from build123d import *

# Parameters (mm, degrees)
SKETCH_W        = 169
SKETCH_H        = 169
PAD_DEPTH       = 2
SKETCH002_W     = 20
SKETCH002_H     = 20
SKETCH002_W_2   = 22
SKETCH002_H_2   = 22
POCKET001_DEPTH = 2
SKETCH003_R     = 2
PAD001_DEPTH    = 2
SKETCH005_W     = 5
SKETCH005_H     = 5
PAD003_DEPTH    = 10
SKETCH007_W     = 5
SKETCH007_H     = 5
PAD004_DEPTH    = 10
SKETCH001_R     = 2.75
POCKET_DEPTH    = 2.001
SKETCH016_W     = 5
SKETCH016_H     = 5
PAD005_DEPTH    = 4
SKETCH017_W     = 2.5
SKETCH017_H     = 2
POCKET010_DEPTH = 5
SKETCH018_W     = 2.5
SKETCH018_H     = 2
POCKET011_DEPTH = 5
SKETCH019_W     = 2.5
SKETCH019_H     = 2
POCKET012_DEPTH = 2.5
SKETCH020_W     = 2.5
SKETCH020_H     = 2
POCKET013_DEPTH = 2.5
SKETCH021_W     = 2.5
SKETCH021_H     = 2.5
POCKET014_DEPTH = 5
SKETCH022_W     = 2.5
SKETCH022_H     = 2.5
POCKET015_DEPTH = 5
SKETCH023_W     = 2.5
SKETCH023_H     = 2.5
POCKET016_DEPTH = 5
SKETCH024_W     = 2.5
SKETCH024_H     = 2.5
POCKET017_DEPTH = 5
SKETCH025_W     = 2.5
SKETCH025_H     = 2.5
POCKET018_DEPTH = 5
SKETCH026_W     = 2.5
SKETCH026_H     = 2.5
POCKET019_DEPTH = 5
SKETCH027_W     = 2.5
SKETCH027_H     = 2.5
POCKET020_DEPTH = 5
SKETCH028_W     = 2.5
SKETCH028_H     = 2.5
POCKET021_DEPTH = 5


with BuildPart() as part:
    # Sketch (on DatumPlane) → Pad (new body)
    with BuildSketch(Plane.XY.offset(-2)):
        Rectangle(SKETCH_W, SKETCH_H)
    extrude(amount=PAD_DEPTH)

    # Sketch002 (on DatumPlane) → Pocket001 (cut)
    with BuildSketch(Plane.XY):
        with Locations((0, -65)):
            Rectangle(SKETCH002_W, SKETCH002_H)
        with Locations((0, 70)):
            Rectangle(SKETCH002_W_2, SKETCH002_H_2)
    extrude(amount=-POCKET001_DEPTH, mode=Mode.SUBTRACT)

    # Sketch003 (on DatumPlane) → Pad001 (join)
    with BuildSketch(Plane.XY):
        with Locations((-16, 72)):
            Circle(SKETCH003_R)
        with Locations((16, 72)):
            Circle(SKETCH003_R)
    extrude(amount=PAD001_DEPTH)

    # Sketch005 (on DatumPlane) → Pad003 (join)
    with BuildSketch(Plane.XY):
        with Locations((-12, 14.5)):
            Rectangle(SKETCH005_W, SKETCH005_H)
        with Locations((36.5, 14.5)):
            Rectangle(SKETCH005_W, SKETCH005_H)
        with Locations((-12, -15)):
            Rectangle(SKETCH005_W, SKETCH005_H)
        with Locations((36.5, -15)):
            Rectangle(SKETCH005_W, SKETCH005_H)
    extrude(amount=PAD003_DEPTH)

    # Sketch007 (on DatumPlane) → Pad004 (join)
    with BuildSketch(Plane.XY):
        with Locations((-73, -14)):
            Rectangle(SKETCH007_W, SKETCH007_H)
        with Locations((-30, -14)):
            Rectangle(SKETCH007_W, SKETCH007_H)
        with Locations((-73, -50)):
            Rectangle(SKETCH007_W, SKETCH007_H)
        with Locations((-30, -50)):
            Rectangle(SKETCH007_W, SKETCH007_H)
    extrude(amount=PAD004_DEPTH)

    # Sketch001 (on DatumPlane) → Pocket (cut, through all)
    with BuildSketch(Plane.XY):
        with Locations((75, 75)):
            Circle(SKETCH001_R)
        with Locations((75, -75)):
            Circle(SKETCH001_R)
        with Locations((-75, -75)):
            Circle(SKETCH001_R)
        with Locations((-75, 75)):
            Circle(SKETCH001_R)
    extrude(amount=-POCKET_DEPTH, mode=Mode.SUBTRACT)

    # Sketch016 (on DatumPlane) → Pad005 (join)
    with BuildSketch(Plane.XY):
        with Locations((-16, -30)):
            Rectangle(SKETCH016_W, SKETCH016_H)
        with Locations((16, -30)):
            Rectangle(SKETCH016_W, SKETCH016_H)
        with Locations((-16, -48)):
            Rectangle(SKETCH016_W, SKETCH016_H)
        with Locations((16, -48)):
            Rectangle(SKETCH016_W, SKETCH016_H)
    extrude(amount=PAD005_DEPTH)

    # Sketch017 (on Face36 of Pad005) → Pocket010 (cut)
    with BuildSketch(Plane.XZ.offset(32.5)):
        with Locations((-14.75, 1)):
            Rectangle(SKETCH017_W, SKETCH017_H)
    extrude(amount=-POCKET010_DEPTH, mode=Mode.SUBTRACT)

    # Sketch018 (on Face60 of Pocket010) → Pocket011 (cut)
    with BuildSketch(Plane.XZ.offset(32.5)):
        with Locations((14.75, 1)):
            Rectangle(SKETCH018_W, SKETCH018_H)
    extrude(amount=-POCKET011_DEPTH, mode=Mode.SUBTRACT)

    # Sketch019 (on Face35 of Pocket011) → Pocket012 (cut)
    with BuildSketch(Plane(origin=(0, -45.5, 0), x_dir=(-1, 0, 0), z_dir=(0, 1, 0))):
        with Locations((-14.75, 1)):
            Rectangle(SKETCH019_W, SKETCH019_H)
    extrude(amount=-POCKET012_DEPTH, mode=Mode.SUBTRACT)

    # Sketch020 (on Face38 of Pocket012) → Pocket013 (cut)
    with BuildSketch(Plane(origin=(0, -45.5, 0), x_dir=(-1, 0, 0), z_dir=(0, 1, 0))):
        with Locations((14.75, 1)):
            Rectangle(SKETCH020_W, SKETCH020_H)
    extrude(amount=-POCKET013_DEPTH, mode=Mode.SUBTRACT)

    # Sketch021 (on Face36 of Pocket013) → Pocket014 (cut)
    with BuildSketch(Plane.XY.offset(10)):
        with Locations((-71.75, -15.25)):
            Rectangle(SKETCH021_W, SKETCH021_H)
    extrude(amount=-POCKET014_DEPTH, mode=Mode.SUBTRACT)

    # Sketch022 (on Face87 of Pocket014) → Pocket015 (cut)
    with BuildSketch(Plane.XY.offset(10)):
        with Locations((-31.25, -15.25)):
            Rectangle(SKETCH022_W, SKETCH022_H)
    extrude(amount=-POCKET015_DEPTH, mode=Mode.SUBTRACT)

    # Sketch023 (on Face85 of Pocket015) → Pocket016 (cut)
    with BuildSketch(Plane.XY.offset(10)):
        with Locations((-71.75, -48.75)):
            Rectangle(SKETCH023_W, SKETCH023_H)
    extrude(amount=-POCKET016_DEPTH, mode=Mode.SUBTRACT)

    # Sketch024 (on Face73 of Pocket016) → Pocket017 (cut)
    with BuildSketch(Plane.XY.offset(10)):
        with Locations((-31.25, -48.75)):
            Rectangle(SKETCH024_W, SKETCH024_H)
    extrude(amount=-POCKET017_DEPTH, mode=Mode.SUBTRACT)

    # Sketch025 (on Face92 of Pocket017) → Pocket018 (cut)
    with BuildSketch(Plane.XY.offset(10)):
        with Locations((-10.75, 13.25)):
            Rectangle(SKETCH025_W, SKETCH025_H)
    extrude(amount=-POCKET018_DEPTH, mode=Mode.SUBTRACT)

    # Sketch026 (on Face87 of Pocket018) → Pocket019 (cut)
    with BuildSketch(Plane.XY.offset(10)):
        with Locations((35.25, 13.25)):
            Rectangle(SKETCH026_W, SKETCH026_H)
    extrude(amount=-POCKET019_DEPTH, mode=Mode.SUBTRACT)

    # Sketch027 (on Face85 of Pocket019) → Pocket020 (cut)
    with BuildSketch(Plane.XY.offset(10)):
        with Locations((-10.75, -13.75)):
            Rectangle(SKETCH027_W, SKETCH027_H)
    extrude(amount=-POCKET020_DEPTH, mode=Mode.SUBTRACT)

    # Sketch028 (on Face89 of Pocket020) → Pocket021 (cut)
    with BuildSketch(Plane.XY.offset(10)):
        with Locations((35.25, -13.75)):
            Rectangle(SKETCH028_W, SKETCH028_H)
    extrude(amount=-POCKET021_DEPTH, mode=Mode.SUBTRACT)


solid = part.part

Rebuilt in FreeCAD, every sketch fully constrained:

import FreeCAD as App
import Part
import Sketcher
from FreeCAD import Vector
Q = App.Units.Quantity

doc = App.newDocument("Part")
body = doc.addObject("PartDesign::Body", "Body")

# Sketch on XY plane
sketch1 = body.newObject("Sketcher::SketchObject", "Sketch")
sketch1.AttachmentSupport = (doc.getObject("XY_Plane"), [""])
sketch1.MapMode = "FlatFace"
sketch1.AttachmentOffset = App.Placement(Vector(0, 0, -2), App.Rotation())
sketch1.addGeometry([
    Part.LineSegment(Vector(-84, 84, 0), Vector(-84, -84, 0)),
    Part.LineSegment(Vector(-84, -84, 0), Vector(84, -84, 0)),
    Part.LineSegment(Vector(84, -84, 0), Vector(84, 84, 0)),
    Part.LineSegment(Vector(84, 84, 0), Vector(-84, 84, 0)),
], False)
sketch1.addConstraint([
    Sketcher.Constraint("Coincident", 0, 2, 1, 1),
    Sketcher.Constraint("Coincident", 1, 2, 2, 1),
    Sketcher.Constraint("Coincident", 2, 2, 3, 1),
    Sketcher.Constraint("Coincident", 3, 2, 0, 1),
    Sketcher.Constraint("Vertical", 0),
    Sketcher.Constraint("Horizontal", 1),
    Sketcher.Constraint("Vertical", 2),
    Sketcher.Constraint("Horizontal", 3),
    Sketcher.Constraint("Symmetric", 0, 2, 2, 2, -1, 1),
    Sketcher.Constraint("Equal", 3, 0),
    Sketcher.Constraint("DistanceX", 1, 1, 1, 2, Q("169 mm")),
])
pad1 = body.newObject("PartDesign::Pad", "Pad")
pad1.Profile = sketch1
pad1.Length = 2

# Sketch on XY plane
sketch2 = body.newObject("Sketcher::SketchObject", "Sketch001")
sketch2.AttachmentSupport = (doc.getObject("XY_Plane"), [""])
sketch2.MapMode = "FlatFace"
sketch2.addGeometry([
    Part.LineSegment(Vector(-10, -55, 0), Vector(-10, -75, 0)),  # 0
    Part.LineSegment(Vector(-10, -75, 0), Vector(10, -75, 0)),  # 1
    Part.LineSegment(Vector(10, -75, 0), Vector(10, -55, 0)),  # 2
    Part.LineSegment(Vector(10, -55, 0), Vector(-10, -55, 0)),  # 3
    Part.LineSegment(Vector(-11, 81, 0), Vector(-11, 59, 0)),  # 4
    Part.LineSegment(Vector(-11, 59, 0), Vector(11, 59, 0)),  # 5
    Part.LineSegment(Vector(11, 59, 0), Vector(11, 81, 0)),  # 6
    Part.LineSegment(Vector(11, 81, 0), Vector(-11, 81, 0)),  # 7
], False)
sketch2.addConstraint([
    Sketcher.Constraint("Coincident", 0, 2, 1, 1),
    Sketcher.Constraint("Coincident", 1, 2, 2, 1),
    Sketcher.Constraint("Coincident", 2, 2, 3, 1),
    Sketcher.Constraint("Coincident", 3, 2, 0, 1),
    Sketcher.Constraint("Coincident", 4, 2, 5, 1),
    Sketcher.Constraint("Coincident", 5, 2, 6, 1),
    Sketcher.Constraint("Coincident", 6, 2, 7, 1),
    Sketcher.Constraint("Coincident", 7, 2, 4, 1),
    Sketcher.Constraint("Vertical", 0),
    Sketcher.Constraint("Horizontal", 1),
    Sketcher.Constraint("Vertical", 2),
    Sketcher.Constraint("Horizontal", 3),
    Sketcher.Constraint("Vertical", 4),
    Sketcher.Constraint("Horizontal", 5),
    Sketcher.Constraint("Vertical", 6),
    Sketcher.Constraint("Horizontal", 7),
    Sketcher.Constraint("Equal", 3, 0),
    Sketcher.Constraint("Equal", 7, 4),
    Sketcher.Constraint("DistanceX", 1, 1, 1, 2, Q("20 mm")),
    Sketcher.Constraint("DistanceX", 5, 1, 5, 2, Q("22 mm")),
    Sketcher.Constraint("DistanceX", 0, 2, -1, 1, Q("10 mm")),
    Sketcher.Constraint("DistanceY", 0, 2, -1, 1, Q("75 mm")),
    Sketcher.Constraint("DistanceX", 4, 2, -1, 1, Q("11 mm")),
    Sketcher.Constraint("DistanceY", -1, 1, 4, 2, Q("59 mm")),
])
pocket1 = body.newObject("PartDesign::Pocket", "Pocket")
pocket1.Profile = sketch2
pocket1.Length = 2

# Sketch on XY plane
sketch3 = body.newObject("Sketcher::SketchObject", "Sketch002")
sketch3.AttachmentSupport = (doc.getObject("XY_Plane"), [""])
sketch3.MapMode = "FlatFace"
sketch3.addGeometry([
    Part.Circle(Vector(-16, 72, 0), Vector(0, 0, 1), 2),
    Part.Circle(Vector(16, 72, 0), Vector(0, 0, 1), 2),
], False)
sketch3.addConstraint([
    Sketcher.Constraint("Equal", 0, 1),
    Sketcher.Constraint("Symmetric", 0, 3, 1, 3, -2),
    Sketcher.Constraint("Diameter", 0, Q("4 mm")),
    Sketcher.Constraint("DistanceX", 0, 3, -1, 1, Q("16 mm")),
    Sketcher.Constraint("DistanceY", -1, 1, 0, 3, Q("72 mm")),
])
pad2 = body.newObject("PartDesign::Pad", "Pad001")
pad2.Profile = sketch3
pad2.Length = 2

# Sketch on XY plane
sketch4 = body.newObject("Sketcher::SketchObject", "Sketch003")
sketch4.AttachmentSupport = (doc.getObject("XY_Plane"), [""])
sketch4.MapMode = "FlatFace"
sketch4.addGeometry([
    Part.LineSegment(Vector(-14, 17, 0), Vector(-14, 12, 0)),  # 0
    Part.LineSegment(Vector(-14, 12, 0), Vector(-10, 12, 0)),  # 1
    Part.LineSegment(Vector(-10, 12, 0), Vector(-10, 17, 0)),  # 2
    Part.LineSegment(Vector(-10, 17, 0), Vector(-14, 17, 0)),  # 3
    Part.LineSegment(Vector(34, 17, 0), Vector(34, 12, 0)),  # 4
    Part.LineSegment(Vector(34, 12, 0), Vector(39, 12, 0)),  # 5
    Part.LineSegment(Vector(39, 12, 0), Vector(39, 17, 0)),  # 6
    Part.LineSegment(Vector(39, 17, 0), Vector(34, 17, 0)),  # 7
    Part.LineSegment(Vector(-14, -12, 0), Vector(-14, -18, 0)),  # 8
    Part.LineSegment(Vector(-14, -18, 0), Vector(-10, -18, 0)),  # 9
    Part.LineSegment(Vector(-10, -18, 0), Vector(-10, -12, 0)),  # 10
    Part.LineSegment(Vector(-10, -12, 0), Vector(-14, -12, 0)),  # 11
    Part.LineSegment(Vector(34, -12, 0), Vector(34, -18, 0)),  # 12
    Part.LineSegment(Vector(34, -18, 0), Vector(39, -18, 0)),  # 13
    Part.LineSegment(Vector(39, -18, 0), Vector(39, -12, 0)),  # 14
    Part.LineSegment(Vector(39, -12, 0), Vector(34, -12, 0)),  # 15
], False)
sketch4.addConstraint([
    Sketcher.Constraint("Coincident", 0, 2, 1, 1),
    Sketcher.Constraint("Coincident", 1, 2, 2, 1),
    Sketcher.Constraint("Coincident", 2, 2, 3, 1),
    Sketcher.Constraint("Coincident", 3, 2, 0, 1),
    Sketcher.Constraint("Coincident", 4, 2, 5, 1),
    Sketcher.Constraint("Coincident", 5, 2, 6, 1),
    Sketcher.Constraint("Coincident", 6, 2, 7, 1),
    Sketcher.Constraint("Coincident", 7, 2, 4, 1),
    Sketcher.Constraint("Coincident", 8, 2, 9, 1),
    Sketcher.Constraint("Coincident", 9, 2, 10, 1),
    Sketcher.Constraint("Coincident", 10, 2, 11, 1),
    Sketcher.Constraint("Coincident", 11, 2, 8, 1),
    Sketcher.Constraint("Coincident", 12, 2, 13, 1),
    Sketcher.Constraint("Coincident", 13, 2, 14, 1),
    Sketcher.Constraint("Coincident", 14, 2, 15, 1),
    Sketcher.Constraint("Coincident", 15, 2, 12, 1),
    Sketcher.Constraint("Vertical", 0),
    Sketcher.Constraint("Horizontal", 1),
    Sketcher.Constraint("Vertical", 2),
    Sketcher.Constraint("Horizontal", 3),
    Sketcher.Constraint("Vertical", 4),
    Sketcher.Constraint("Horizontal", 5),
    Sketcher.Constraint("Vertical", 6),
    Sketcher.Constraint("Horizontal", 7),
    Sketcher.Constraint("Vertical", 8),
    Sketcher.Constraint("Horizontal", 9),
    Sketcher.Constraint("Vertical", 10),
    Sketcher.Constraint("Horizontal", 11),
    Sketcher.Constraint("Vertical", 12),
    Sketcher.Constraint("Horizontal", 13),
    Sketcher.Constraint("Vertical", 14),
    Sketcher.Constraint("Horizontal", 15),
    Sketcher.Constraint("Horizontal", 1, 2, 4, 2),
    Sketcher.Constraint("Horizontal", 3, 2, 6, 2),
    Sketcher.Constraint("Horizontal", 9, 2, 12, 2),
    Sketcher.Constraint("Horizontal", 11, 2, 14, 2),
    Sketcher.Constraint("Vertical", 3, 2, 8, 2),
    Sketcher.Constraint("Vertical", 2, 2, 9, 2),
    Sketcher.Constraint("Vertical", 7, 2, 12, 2),
    Sketcher.Constraint("Vertical", 6, 2, 13, 2),
    Sketcher.Constraint("Equal", 3, 5),
    Sketcher.Constraint("Equal", 15, 0),
    Sketcher.Constraint("Equal", 6, 8),
    Sketcher.Constraint("DistanceX", 1, 1, 1, 2, Q("5 mm")),
    Sketcher.Constraint("DistanceY", -1, 1, 0, 2, Q("12 mm")),
    Sketcher.Constraint("DistanceX", -1, 1, 4, 2, Q("34 mm")),
    Sketcher.Constraint("DistanceX", 0, 2, -1, 1, Q("14.5 mm")),
    Sketcher.Constraint("DistanceY", 8, 2, -1, 1, Q("17.5 mm")),
])
pad3 = body.newObject("PartDesign::Pad", "Pad002")
pad3.Profile = sketch4
pad3.Length = 10

# Sketch on XY plane
sketch5 = body.newObject("Sketcher::SketchObject", "Sketch004")
sketch5.AttachmentSupport = (doc.getObject("XY_Plane"), [""])
sketch5.MapMode = "FlatFace"
sketch5.addGeometry([
    Part.LineSegment(Vector(-76, -12, 0), Vector(-76, -16, 0)),  # 0
    Part.LineSegment(Vector(-76, -16, 0), Vector(-70, -16, 0)),  # 1
    Part.LineSegment(Vector(-70, -16, 0), Vector(-70, -12, 0)),  # 2
    Part.LineSegment(Vector(-70, -12, 0), Vector(-76, -12, 0)),  # 3
    Part.LineSegment(Vector(-32, -12, 0), Vector(-32, -16, 0)),  # 4
    Part.LineSegment(Vector(-32, -16, 0), Vector(-28, -16, 0)),  # 5
    Part.LineSegment(Vector(-28, -16, 0), Vector(-28, -12, 0)),  # 6
    Part.LineSegment(Vector(-28, -12, 0), Vector(-32, -12, 0)),  # 7
    Part.LineSegment(Vector(-76, -48, 0), Vector(-76, -52, 0)),  # 8
    Part.LineSegment(Vector(-76, -52, 0), Vector(-70, -52, 0)),  # 9
    Part.LineSegment(Vector(-70, -52, 0), Vector(-70, -48, 0)),  # 10
    Part.LineSegment(Vector(-70, -48, 0), Vector(-76, -48, 0)),  # 11
    Part.LineSegment(Vector(-32, -48, 0), Vector(-32, -52, 0)),  # 12
    Part.LineSegment(Vector(-32, -52, 0), Vector(-28, -52, 0)),  # 13
    Part.LineSegment(Vector(-28, -52, 0), Vector(-28, -48, 0)),  # 14
    Part.LineSegment(Vector(-28, -48, 0), Vector(-32, -48, 0)),  # 15
], False)
sketch5.addConstraint([
    Sketcher.Constraint("Coincident", 0, 2, 1, 1),
    Sketcher.Constraint("Coincident", 1, 2, 2, 1),
    Sketcher.Constraint("Coincident", 2, 2, 3, 1),
    Sketcher.Constraint("Coincident", 3, 2, 0, 1),
    Sketcher.Constraint("Coincident", 4, 2, 5, 1),
    Sketcher.Constraint("Coincident", 5, 2, 6, 1),
    Sketcher.Constraint("Coincident", 6, 2, 7, 1),
    Sketcher.Constraint("Coincident", 7, 2, 4, 1),
    Sketcher.Constraint("Coincident", 8, 2, 9, 1),
    Sketcher.Constraint("Coincident", 9, 2, 10, 1),
    Sketcher.Constraint("Coincident", 10, 2, 11, 1),
    Sketcher.Constraint("Coincident", 11, 2, 8, 1),
    Sketcher.Constraint("Coincident", 12, 2, 13, 1),
    Sketcher.Constraint("Coincident", 13, 2, 14, 1),
    Sketcher.Constraint("Coincident", 14, 2, 15, 1),
    Sketcher.Constraint("Coincident", 15, 2, 12, 1),
    Sketcher.Constraint("Vertical", 0),
    Sketcher.Constraint("Horizontal", 1),
    Sketcher.Constraint("Vertical", 2),
    Sketcher.Constraint("Horizontal", 3),
    Sketcher.Constraint("Vertical", 4),
    Sketcher.Constraint("Horizontal", 5),
    Sketcher.Constraint("Vertical", 6),
    Sketcher.Constraint("Horizontal", 7),
    Sketcher.Constraint("Vertical", 8),
    Sketcher.Constraint("Horizontal", 9),
    Sketcher.Constraint("Vertical", 10),
    Sketcher.Constraint("Horizontal", 11),
    Sketcher.Constraint("Vertical", 12),
    Sketcher.Constraint("Horizontal", 13),
    Sketcher.Constraint("Vertical", 14),
    Sketcher.Constraint("Horizontal", 15),
    Sketcher.Constraint("Horizontal", 1, 2, 4, 2),
    Sketcher.Constraint("Horizontal", 3, 2, 6, 2),
    Sketcher.Constraint("Horizontal", 9, 2, 12, 2),
    Sketcher.Constraint("Horizontal", 11, 2, 14, 2),
    Sketcher.Constraint("Vertical", 3, 2, 8, 2),
    Sketcher.Constraint("Vertical", 2, 2, 9, 2),
    Sketcher.Constraint("Vertical", 7, 2, 12, 2),
    Sketcher.Constraint("Vertical", 6, 2, 13, 2),
    Sketcher.Constraint("Equal", 3, 5),
    Sketcher.Constraint("Equal", 15, 0),
    Sketcher.Constraint("Equal", 6, 8),
    Sketcher.Constraint("DistanceX", 1, 1, 1, 2, Q("5 mm")),
    Sketcher.Constraint("DistanceX", 1, 2, 4, 2, Q("38 mm")),
    Sketcher.Constraint("DistanceY", 8, 2, 0, 2, Q("36 mm")),
    Sketcher.Constraint("DistanceX", 0, 2, -1, 1, Q("75.5 mm")),
    Sketcher.Constraint("DistanceY", 0, 2, -1, 1, Q("16.5 mm")),
])
pad4 = body.newObject("PartDesign::Pad", "Pad003")
pad4.Profile = sketch5
pad4.Length = 10

# Sketch on XY plane
sketch6 = body.newObject("Sketcher::SketchObject", "Sketch005")
sketch6.AttachmentSupport = (doc.getObject("XY_Plane"), [""])
sketch6.MapMode = "FlatFace"
sketch6.addGeometry([
    Part.Circle(Vector(75, 75, 0), Vector(0, 0, 1), 2.8),
    Part.Circle(Vector(75, -75, 0), Vector(0, 0, 1), 2.8),
    Part.Circle(Vector(-75, -75, 0), Vector(0, 0, 1), 2.8),
    Part.Circle(Vector(-75, 75, 0), Vector(0, 0, 1), 2.8),
], False)
sketch6.addConstraint([
    Sketcher.Constraint("Equal", 0, 1),
    Sketcher.Constraint("Equal", 1, 2),
    Sketcher.Constraint("Equal", 2, 3),
    Sketcher.Constraint("Symmetric", 0, 3, 2, 3, -1, 1),
    Sketcher.Constraint("Symmetric", 1, 3, 3, 3, -1, 1),
    Sketcher.Constraint("Symmetric", 1, 3, 2, 3, -2),
    Sketcher.Constraint("Diameter", 0, Q("5.5 mm")),
    Sketcher.Constraint("DistanceX", -1, 1, 0, 3, Q("75 mm")),
    Sketcher.Constraint("DistanceY", -1, 1, 0, 3, Q("75 mm")),
])
pocket2 = body.newObject("PartDesign::Pocket", "Pocket001")
pocket2.Profile = sketch6
pocket2.Type = "ThroughAll"

# Sketch on XY plane
sketch7 = body.newObject("Sketcher::SketchObject", "Sketch006")
sketch7.AttachmentSupport = (doc.getObject("XY_Plane"), [""])
sketch7.MapMode = "FlatFace"
sketch7.addGeometry([
    Part.LineSegment(Vector(-18, -28, 0), Vector(-18, -32, 0)),  # 0
    Part.LineSegment(Vector(-18, -32, 0), Vector(-14, -32, 0)),  # 1
    Part.LineSegment(Vector(-14, -32, 0), Vector(-14, -28, 0)),  # 2
    Part.LineSegment(Vector(-14, -28, 0), Vector(-18, -28, 0)),  # 3
    Part.LineSegment(Vector(14, -28, 0), Vector(14, -32, 0)),  # 4
    Part.LineSegment(Vector(14, -32, 0), Vector(18, -32, 0)),  # 5
    Part.LineSegment(Vector(18, -32, 0), Vector(18, -28, 0)),  # 6
    Part.LineSegment(Vector(18, -28, 0), Vector(14, -28, 0)),  # 7
    Part.LineSegment(Vector(-18, -46, 0), Vector(-18, -50, 0)),  # 8
    Part.LineSegment(Vector(-18, -50, 0), Vector(-14, -50, 0)),  # 9
    Part.LineSegment(Vector(-14, -50, 0), Vector(-14, -46, 0)),  # 10
    Part.LineSegment(Vector(-14, -46, 0), Vector(-18, -46, 0)),  # 11
    Part.LineSegment(Vector(14, -46, 0), Vector(14, -50, 0)),  # 12
    Part.LineSegment(Vector(14, -50, 0), Vector(18, -50, 0)),  # 13
    Part.LineSegment(Vector(18, -50, 0), Vector(18, -46, 0)),  # 14
    Part.LineSegment(Vector(18, -46, 0), Vector(14, -46, 0)),  # 15
], False)
sketch7.addConstraint([
    Sketcher.Constraint("Coincident", 0, 2, 1, 1),
    Sketcher.Constraint("Coincident", 1, 2, 2, 1),
    Sketcher.Constraint("Coincident", 2, 2, 3, 1),
    Sketcher.Constraint("Coincident", 3, 2, 0, 1),
    Sketcher.Constraint("Coincident", 4, 2, 5, 1),
    Sketcher.Constraint("Coincident", 5, 2, 6, 1),
    Sketcher.Constraint("Coincident", 6, 2, 7, 1),
    Sketcher.Constraint("Coincident", 7, 2, 4, 1),
    Sketcher.Constraint("Coincident", 8, 2, 9, 1),
    Sketcher.Constraint("Coincident", 9, 2, 10, 1),
    Sketcher.Constraint("Coincident", 10, 2, 11, 1),
    Sketcher.Constraint("Coincident", 11, 2, 8, 1),
    Sketcher.Constraint("Coincident", 12, 2, 13, 1),
    Sketcher.Constraint("Coincident", 13, 2, 14, 1),
    Sketcher.Constraint("Coincident", 14, 2, 15, 1),
    Sketcher.Constraint("Coincident", 15, 2, 12, 1),
    Sketcher.Constraint("Vertical", 0),
    Sketcher.Constraint("Horizontal", 1),
    Sketcher.Constraint("Vertical", 2),
    Sketcher.Constraint("Horizontal", 3),
    Sketcher.Constraint("Vertical", 4),
    Sketcher.Constraint("Horizontal", 5),
    Sketcher.Constraint("Vertical", 6),
    Sketcher.Constraint("Horizontal", 7),
    Sketcher.Constraint("Vertical", 8),
    Sketcher.Constraint("Horizontal", 9),
    Sketcher.Constraint("Vertical", 10),
    Sketcher.Constraint("Horizontal", 11),
    Sketcher.Constraint("Vertical", 12),
    Sketcher.Constraint("Horizontal", 13),
    Sketcher.Constraint("Vertical", 14),
    Sketcher.Constraint("Horizontal", 15),
    Sketcher.Constraint("Symmetric", 1, 2, 4, 2, -2),
    Sketcher.Constraint("Symmetric", 3, 2, 6, 2, -2),
    Sketcher.Constraint("Symmetric", 9, 2, 12, 2, -2),
    Sketcher.Constraint("Symmetric", 11, 2, 14, 2, -2),
    Sketcher.Constraint("Vertical", 3, 2, 8, 2),
    Sketcher.Constraint("Vertical", 2, 2, 9, 2),
    Sketcher.Constraint("Equal", 15, 0),
    Sketcher.Constraint("Equal", 6, 8),
    Sketcher.Constraint("DistanceX", 1, 1, 1, 2, Q("5 mm")),
    Sketcher.Constraint("DistanceX", 1, 2, 4, 2, Q("27 mm")),
    Sketcher.Constraint("DistanceY", 8, 2, 0, 2, Q("18 mm")),
    Sketcher.Constraint("DistanceY", 0, 2, -1, 1, Q("32.5 mm")),
])
pad5 = body.newObject("PartDesign::Pad", "Pad004")
pad5.Profile = sketch7
pad5.Length = 4

# Sketch on XZ plane
sketch8 = body.newObject("Sketcher::SketchObject", "Sketch007")
sketch8.AttachmentSupport = (doc.getObject("XZ_Plane"), [""])
sketch8.MapMode = "FlatFace"
sketch8.AttachmentOffset = App.Placement(Vector(0, 0, 32.5), App.Rotation())
sketch8.addGeometry([
    Part.LineSegment(Vector(-16, 2, 0), Vector(-16, 0, 0)),
    Part.LineSegment(Vector(-16, 0, 0), Vector(-13.5, 0, 0)),
    Part.LineSegment(Vector(-13.5, 0, 0), Vector(-13.5, 2, 0)),
    Part.LineSegment(Vector(-13.5, 2, 0), Vector(-16, 2, 0)),
], False)
sketch8.addConstraint([
    Sketcher.Constraint("Coincident", 0, 2, 1, 1),
    Sketcher.Constraint("Coincident", 1, 2, 2, 1),
    Sketcher.Constraint("Coincident", 2, 2, 3, 1),
    Sketcher.Constraint("Coincident", 3, 2, 0, 1),
    Sketcher.Constraint("Vertical", 0),
    Sketcher.Constraint("Horizontal", 1),
    Sketcher.Constraint("Vertical", 2),
    Sketcher.Constraint("Horizontal", 3),
    Sketcher.Constraint("PointOnObject", 0, 2, -1),
    Sketcher.Constraint("DistanceY", 0, 2, 0, 1, Q("2 mm")),
    Sketcher.Constraint("DistanceX", 1, 1, 1, 2, Q("2.5 mm")),
    Sketcher.Constraint("DistanceX", 0, 2, -1, 1, Q("16 mm")),
])
pocket3 = body.newObject("PartDesign::Pocket", "Pocket002")
pocket3.Profile = sketch8
pocket3.Length = 5

# Sketch on XZ plane
sketch9 = body.newObject("Sketcher::SketchObject", "Sketch008")
sketch9.AttachmentSupport = (doc.getObject("XZ_Plane"), [""])
sketch9.MapMode = "FlatFace"
sketch9.AttachmentOffset = App.Placement(Vector(0, 0, 32.5), App.Rotation())
sketch9.addGeometry([
    Part.LineSegment(Vector(13.5, 2, 0), Vector(13.5, 0, 0)),
    Part.LineSegment(Vector(13.5, 0, 0), Vector(16, 0, 0)),
    Part.LineSegment(Vector(16, 0, 0), Vector(16, 2, 0)),
    Part.LineSegment(Vector(16, 2, 0), Vector(13.5, 2, 0)),
], False)
sketch9.addConstraint([
    Sketcher.Constraint("Coincident", 0, 2, 1, 1),
    Sketcher.Constraint("Coincident", 1, 2, 2, 1),
    Sketcher.Constraint("Coincident", 2, 2, 3, 1),
    Sketcher.Constraint("Coincident", 3, 2, 0, 1),
    Sketcher.Constraint("Vertical", 0),
    Sketcher.Constraint("Horizontal", 1),
    Sketcher.Constraint("Vertical", 2),
    Sketcher.Constraint("Horizontal", 3),
    Sketcher.Constraint("PointOnObject", 0, 2, -1),
    Sketcher.Constraint("DistanceY", 0, 2, 0, 1, Q("2 mm")),
    Sketcher.Constraint("DistanceX", 1, 1, 1, 2, Q("2.5 mm")),
    Sketcher.Constraint("DistanceX", -1, 1, 1, 2, Q("16 mm")),
])
pocket4 = body.newObject("PartDesign::Pocket", "Pocket003")
pocket4.Profile = sketch9
pocket4.Length = 5

# Sketch on XZ plane
sketch10 = body.newObject("Sketcher::SketchObject", "Sketch009")
sketch10.AttachmentSupport = (doc.getObject("XZ_Plane"), [""])
sketch10.MapMode = "FlatFace"
sketch10.AttachmentOffset = App.Placement(Vector(0, 0, 45.5), App.Rotation())
sketch10.addGeometry([
    Part.LineSegment(Vector(16, 2, 0), Vector(16, 0, 0)),
    Part.LineSegment(Vector(16, 0, 0), Vector(13.5, 0, 0)),
    Part.LineSegment(Vector(13.5, 0, 0), Vector(13.5, 2, 0)),
    Part.LineSegment(Vector(13.5, 2, 0), Vector(16, 2, 0)),
], False)
sketch10.addConstraint([
    Sketcher.Constraint("Coincident", 0, 2, 1, 1),
    Sketcher.Constraint("Coincident", 1, 2, 2, 1),
    Sketcher.Constraint("Coincident", 2, 2, 3, 1),
    Sketcher.Constraint("Coincident", 3, 2, 0, 1),
    Sketcher.Constraint("Vertical", 0),
    Sketcher.Constraint("Horizontal", 1),
    Sketcher.Constraint("Vertical", 2),
    Sketcher.Constraint("Horizontal", 3),
    Sketcher.Constraint("PointOnObject", 0, 2, -1),
    Sketcher.Constraint("DistanceY", 0, 2, 0, 1, Q("2 mm")),
    Sketcher.Constraint("DistanceX", 1, 2, 1, 1, Q("2.5 mm")),
    Sketcher.Constraint("DistanceX", -1, 1, 0, 2, Q("16 mm")),
])
pocket5 = body.newObject("PartDesign::Pocket", "Pocket004")
pocket5.Profile = sketch10
pocket5.Length = 2.5
pocket5.Reversed = True

# Sketch on XZ plane
sketch11 = body.newObject("Sketcher::SketchObject", "Sketch010")
sketch11.AttachmentSupport = (doc.getObject("XZ_Plane"), [""])
sketch11.MapMode = "FlatFace"
sketch11.AttachmentOffset = App.Placement(Vector(0, 0, 45.5), App.Rotation())
sketch11.addGeometry([
    Part.LineSegment(Vector(-13.5, 2, 0), Vector(-13.5, 0, 0)),
    Part.LineSegment(Vector(-13.5, 0, 0), Vector(-16, 0, 0)),
    Part.LineSegment(Vector(-16, 0, 0), Vector(-16, 2, 0)),
    Part.LineSegment(Vector(-16, 2, 0), Vector(-13.5, 2, 0)),
], False)
sketch11.addConstraint([
    Sketcher.Constraint("Coincident", 0, 2, 1, 1),
    Sketcher.Constraint("Coincident", 1, 2, 2, 1),
    Sketcher.Constraint("Coincident", 2, 2, 3, 1),
    Sketcher.Constraint("Coincident", 3, 2, 0, 1),
    Sketcher.Constraint("Vertical", 0),
    Sketcher.Constraint("Horizontal", 1),
    Sketcher.Constraint("Vertical", 2),
    Sketcher.Constraint("Horizontal", 3),
    Sketcher.Constraint("PointOnObject", 0, 2, -1),
    Sketcher.Constraint("DistanceY", 0, 2, 0, 1, Q("2 mm")),
    Sketcher.Constraint("DistanceX", 1, 2, 1, 1, Q("2.5 mm")),
    Sketcher.Constraint("DistanceX", 1, 2, -1, 1, Q("16 mm")),
])
pocket6 = body.newObject("PartDesign::Pocket", "Pocket005")
pocket6.Profile = sketch11
pocket6.Length = 2.5
pocket6.Reversed = True

# Sketch on XY plane
sketch12 = body.newObject("Sketcher::SketchObject", "Sketch011")
sketch12.AttachmentSupport = (doc.getObject("XY_Plane"), [""])
sketch12.MapMode = "FlatFace"
sketch12.AttachmentOffset = App.Placement(Vector(0, 0, 10), App.Rotation())
sketch12.addGeometry([
    Part.LineSegment(Vector(-73, -14, 0), Vector(-73, -16.5, 0)),
    Part.LineSegment(Vector(-73, -16.5, 0), Vector(-70.5, -16.5, 0)),
    Part.LineSegment(Vector(-70.5, -16.5, 0), Vector(-70.5, -14, 0)),
    Part.LineSegment(Vector(-70.5, -14, 0), Vector(-73, -14, 0)),
], False)
sketch12.addConstraint([
    Sketcher.Constraint("Coincident", 0, 2, 1, 1),
    Sketcher.Constraint("Coincident", 1, 2, 2, 1),
    Sketcher.Constraint("Coincident", 2, 2, 3, 1),
    Sketcher.Constraint("Coincident", 3, 2, 0, 1),
    Sketcher.Constraint("Vertical", 0),
    Sketcher.Constraint("Horizontal", 1),
    Sketcher.Constraint("Vertical", 2),
    Sketcher.Constraint("Horizontal", 3),
    Sketcher.Constraint("Equal", 3, 0),
    Sketcher.Constraint("DistanceX", 1, 1, 1, 2, Q("2.5 mm")),
    Sketcher.Constraint("DistanceX", 0, 2, -1, 1, Q("73 mm")),
    Sketcher.Constraint("DistanceY", 2, 2, -1, 1, Q("14 mm")),
])
pocket7 = body.newObject("PartDesign::Pocket", "Pocket006")
pocket7.Profile = sketch12
pocket7.Length = 5

# Sketch on XY plane
sketch13 = body.newObject("Sketcher::SketchObject", "Sketch012")
sketch13.AttachmentSupport = (doc.getObject("XY_Plane"), [""])
sketch13.MapMode = "FlatFace"
sketch13.AttachmentOffset = App.Placement(Vector(0, 0, 10), App.Rotation())
sketch13.addGeometry([
    Part.LineSegment(Vector(-32.5, -14, 0), Vector(-32.5, -16.5, 0)),
    Part.LineSegment(Vector(-32.5, -16.5, 0), Vector(-30, -16.5, 0)),
    Part.LineSegment(Vector(-30, -16.5, 0), Vector(-30, -14, 0)),
    Part.LineSegment(Vector(-30, -14, 0), Vector(-32.5, -14, 0)),
], False)
sketch13.addConstraint([
    Sketcher.Constraint("Coincident", 0, 2, 1, 1),
    Sketcher.Constraint("Coincident", 1, 2, 2, 1),
    Sketcher.Constraint("Coincident", 2, 2, 3, 1),
    Sketcher.Constraint("Coincident", 3, 2, 0, 1),
    Sketcher.Constraint("Vertical", 0),
    Sketcher.Constraint("Horizontal", 1),
    Sketcher.Constraint("Vertical", 2),
    Sketcher.Constraint("Horizontal", 3),
    Sketcher.Constraint("Equal", 3, 0),
    Sketcher.Constraint("DistanceX", 1, 1, 1, 2, Q("2.5 mm")),
    Sketcher.Constraint("DistanceX", 1, 2, -1, 1, Q("30 mm")),
    Sketcher.Constraint("DistanceY", 2, 2, -1, 1, Q("14 mm")),
])
pocket8 = body.newObject("PartDesign::Pocket", "Pocket007")
pocket8.Profile = sketch13
pocket8.Length = 5

# Sketch on XY plane
sketch14 = body.newObject("Sketcher::SketchObject", "Sketch013")
sketch14.AttachmentSupport = (doc.getObject("XY_Plane"), [""])
sketch14.MapMode = "FlatFace"
sketch14.AttachmentOffset = App.Placement(Vector(0, 0, 10), App.Rotation())
sketch14.addGeometry([
    Part.LineSegment(Vector(-73, -47.5, 0), Vector(-73, -50, 0)),
    Part.LineSegment(Vector(-73, -50, 0), Vector(-70.5, -50, 0)),
    Part.LineSegment(Vector(-70.5, -50, 0), Vector(-70.5, -47.5, 0)),
    Part.LineSegment(Vector(-70.5, -47.5, 0), Vector(-73, -47.5, 0)),
], False)
sketch14.addConstraint([
    Sketcher.Constraint("Coincident", 0, 2, 1, 1),
    Sketcher.Constraint("Coincident", 1, 2, 2, 1),
    Sketcher.Constraint("Coincident", 2, 2, 3, 1),
    Sketcher.Constraint("Coincident", 3, 2, 0, 1),
    Sketcher.Constraint("Vertical", 0),
    Sketcher.Constraint("Horizontal", 1),
    Sketcher.Constraint("Vertical", 2),
    Sketcher.Constraint("Horizontal", 3),
    Sketcher.Constraint("Equal", 3, 0),
    Sketcher.Constraint("DistanceX", 1, 1, 1, 2, Q("2.5 mm")),
    Sketcher.Constraint("DistanceX", 0, 2, -1, 1, Q("73 mm")),
    Sketcher.Constraint("DistanceY", 0, 2, -1, 1, Q("50 mm")),
])
pocket9 = body.newObject("PartDesign::Pocket", "Pocket008")
pocket9.Profile = sketch14
pocket9.Length = 5

# Sketch on XY plane
sketch15 = body.newObject("Sketcher::SketchObject", "Sketch014")
sketch15.AttachmentSupport = (doc.getObject("XY_Plane"), [""])
sketch15.MapMode = "FlatFace"
sketch15.AttachmentOffset = App.Placement(Vector(0, 0, 10), App.Rotation())
sketch15.addGeometry([
    Part.LineSegment(Vector(-32.5, -47.5, 0), Vector(-32.5, -50, 0)),
    Part.LineSegment(Vector(-32.5, -50, 0), Vector(-30, -50, 0)),
    Part.LineSegment(Vector(-30, -50, 0), Vector(-30, -47.5, 0)),
    Part.LineSegment(Vector(-30, -47.5, 0), Vector(-32.5, -47.5, 0)),
], False)
sketch15.addConstraint([
    Sketcher.Constraint("Coincident", 0, 2, 1, 1),
    Sketcher.Constraint("Coincident", 1, 2, 2, 1),
    Sketcher.Constraint("Coincident", 2, 2, 3, 1),
    Sketcher.Constraint("Coincident", 3, 2, 0, 1),
    Sketcher.Constraint("Vertical", 0),
    Sketcher.Constraint("Horizontal", 1),
    Sketcher.Constraint("Vertical", 2),
    Sketcher.Constraint("Horizontal", 3),
    Sketcher.Constraint("Equal", 3, 0),
    Sketcher.Constraint("DistanceX", 1, 1, 1, 2, Q("2.5 mm")),
    Sketcher.Constraint("DistanceY", 0, 2, -1, 1, Q("50 mm")),
    Sketcher.Constraint("DistanceX", 1, 2, -1, 1, Q("30 mm")),
])
pocket10 = body.newObject("PartDesign::Pocket", "Pocket009")
pocket10.Profile = sketch15
pocket10.Length = 5

# Sketch on XY plane
sketch16 = body.newObject("Sketcher::SketchObject", "Sketch015")
sketch16.AttachmentSupport = (doc.getObject("XY_Plane"), [""])
sketch16.MapMode = "FlatFace"
sketch16.AttachmentOffset = App.Placement(Vector(0, 0, 10), App.Rotation())
sketch16.addGeometry([
    Part.LineSegment(Vector(-12, 14.5, 0), Vector(-12, 12, 0)),
    Part.LineSegment(Vector(-12, 12, 0), Vector(-9.5, 12, 0)),
    Part.LineSegment(Vector(-9.5, 12, 0), Vector(-9.5, 14.5, 0)),
    Part.LineSegment(Vector(-9.5, 14.5, 0), Vector(-12, 14.5, 0)),
], False)
sketch16.addConstraint([
    Sketcher.Constraint("Coincident", 0, 2, 1, 1),
    Sketcher.Constraint("Coincident", 1, 2, 2, 1),
    Sketcher.Constraint("Coincident", 2, 2, 3, 1),
    Sketcher.Constraint("Coincident", 3, 2, 0, 1),
    Sketcher.Constraint("Vertical", 0),
    Sketcher.Constraint("Horizontal", 1),
    Sketcher.Constraint("Vertical", 2),
    Sketcher.Constraint("Horizontal", 3),
    Sketcher.Constraint("Equal", 3, 0),
    Sketcher.Constraint("DistanceX", 1, 1, 1, 2, Q("2.5 mm")),
    Sketcher.Constraint("DistanceX", 0, 2, -1, 1, Q("12 mm")),
    Sketcher.Constraint("DistanceY", -1, 1, 0, 2, Q("12 mm")),
])
pocket11 = body.newObject("PartDesign::Pocket", "Pocket010")
pocket11.Profile = sketch16
pocket11.Length = 5

# Sketch on XY plane
sketch17 = body.newObject("Sketcher::SketchObject", "Sketch016")
sketch17.AttachmentSupport = (doc.getObject("XY_Plane"), [""])
sketch17.MapMode = "FlatFace"
sketch17.AttachmentOffset = App.Placement(Vector(0, 0, 10), App.Rotation())
sketch17.addGeometry([
    Part.LineSegment(Vector(34, 14.5, 0), Vector(34, 12, 0)),
    Part.LineSegment(Vector(34, 12, 0), Vector(36.5, 12, 0)),
    Part.LineSegment(Vector(36.5, 12, 0), Vector(36.5, 14.5, 0)),
    Part.LineSegment(Vector(36.5, 14.5, 0), Vector(34, 14.5, 0)),
], False)
sketch17.addConstraint([
    Sketcher.Constraint("Coincident", 0, 2, 1, 1),
    Sketcher.Constraint("Coincident", 1, 2, 2, 1),
    Sketcher.Constraint("Coincident", 2, 2, 3, 1),
    Sketcher.Constraint("Coincident", 3, 2, 0, 1),
    Sketcher.Constraint("Vertical", 0),
    Sketcher.Constraint("Horizontal", 1),
    Sketcher.Constraint("Vertical", 2),
    Sketcher.Constraint("Horizontal", 3),
    Sketcher.Constraint("Equal", 3, 0),
    Sketcher.Constraint("DistanceX", 1, 1, 1, 2, Q("2.5 mm")),
    Sketcher.Constraint("DistanceX", -1, 1, 0, 2, Q("34 mm")),
    Sketcher.Constraint("DistanceY", -1, 1, 0, 2, Q("12 mm")),
])
pocket12 = body.newObject("PartDesign::Pocket", "Pocket011")
pocket12.Profile = sketch17
pocket12.Length = 5

# Sketch on XY plane
sketch18 = body.newObject("Sketcher::SketchObject", "Sketch017")
sketch18.AttachmentSupport = (doc.getObject("XY_Plane"), [""])
sketch18.MapMode = "FlatFace"
sketch18.AttachmentOffset = App.Placement(Vector(0, 0, 10), App.Rotation())
sketch18.addGeometry([
    Part.LineSegment(Vector(-12, -12.5, 0), Vector(-12, -15, 0)),
    Part.LineSegment(Vector(-12, -15, 0), Vector(-9.5, -15, 0)),
    Part.LineSegment(Vector(-9.5, -15, 0), Vector(-9.5, -12.5, 0)),
    Part.LineSegment(Vector(-9.5, -12.5, 0), Vector(-12, -12.5, 0)),
], False)
sketch18.addConstraint([
    Sketcher.Constraint("Coincident", 0, 2, 1, 1),
    Sketcher.Constraint("Coincident", 1, 2, 2, 1),
    Sketcher.Constraint("Coincident", 2, 2, 3, 1),
    Sketcher.Constraint("Coincident", 3, 2, 0, 1),
    Sketcher.Constraint("Vertical", 0),
    Sketcher.Constraint("Horizontal", 1),
    Sketcher.Constraint("Vertical", 2),
    Sketcher.Constraint("Horizontal", 3),
    Sketcher.Constraint("Equal", 3, 0),
    Sketcher.Constraint("DistanceX", 1, 1, 1, 2, Q("2.5 mm")),
    Sketcher.Constraint("DistanceX", 0, 2, -1, 1, Q("12 mm")),
    Sketcher.Constraint("DistanceY", 0, 2, -1, 1, Q("15 mm")),
])
pocket13 = body.newObject("PartDesign::Pocket", "Pocket012")
pocket13.Profile = sketch18
pocket13.Length = 5

# Sketch on XY plane
sketch19 = body.newObject("Sketcher::SketchObject", "Sketch018")
sketch19.AttachmentSupport = (doc.getObject("XY_Plane"), [""])
sketch19.MapMode = "FlatFace"
sketch19.AttachmentOffset = App.Placement(Vector(0, 0, 10), App.Rotation())
sketch19.addGeometry([
    Part.LineSegment(Vector(34, -12.5, 0), Vector(34, -15, 0)),
    Part.LineSegment(Vector(34, -15, 0), Vector(36.5, -15, 0)),
    Part.LineSegment(Vector(36.5, -15, 0), Vector(36.5, -12.5, 0)),
    Part.LineSegment(Vector(36.5, -12.5, 0), Vector(34, -12.5, 0)),
], False)
sketch19.addConstraint([
    Sketcher.Constraint("Coincident", 0, 2, 1, 1),
    Sketcher.Constraint("Coincident", 1, 2, 2, 1),
    Sketcher.Constraint("Coincident", 2, 2, 3, 1),
    Sketcher.Constraint("Coincident", 3, 2, 0, 1),
    Sketcher.Constraint("Vertical", 0),
    Sketcher.Constraint("Horizontal", 1),
    Sketcher.Constraint("Vertical", 2),
    Sketcher.Constraint("Horizontal", 3),
    Sketcher.Constraint("Equal", 3, 0),
    Sketcher.Constraint("DistanceX", 1, 1, 1, 2, Q("2.5 mm")),
    Sketcher.Constraint("DistanceX", -1, 1, 0, 2, Q("34 mm")),
    Sketcher.Constraint("DistanceY", 0, 2, -1, 1, Q("15 mm")),
])
pocket14 = body.newObject("PartDesign::Pocket", "Pocket013")
pocket14.Profile = sketch19
pocket14.Length = 5

doc.recompute()
